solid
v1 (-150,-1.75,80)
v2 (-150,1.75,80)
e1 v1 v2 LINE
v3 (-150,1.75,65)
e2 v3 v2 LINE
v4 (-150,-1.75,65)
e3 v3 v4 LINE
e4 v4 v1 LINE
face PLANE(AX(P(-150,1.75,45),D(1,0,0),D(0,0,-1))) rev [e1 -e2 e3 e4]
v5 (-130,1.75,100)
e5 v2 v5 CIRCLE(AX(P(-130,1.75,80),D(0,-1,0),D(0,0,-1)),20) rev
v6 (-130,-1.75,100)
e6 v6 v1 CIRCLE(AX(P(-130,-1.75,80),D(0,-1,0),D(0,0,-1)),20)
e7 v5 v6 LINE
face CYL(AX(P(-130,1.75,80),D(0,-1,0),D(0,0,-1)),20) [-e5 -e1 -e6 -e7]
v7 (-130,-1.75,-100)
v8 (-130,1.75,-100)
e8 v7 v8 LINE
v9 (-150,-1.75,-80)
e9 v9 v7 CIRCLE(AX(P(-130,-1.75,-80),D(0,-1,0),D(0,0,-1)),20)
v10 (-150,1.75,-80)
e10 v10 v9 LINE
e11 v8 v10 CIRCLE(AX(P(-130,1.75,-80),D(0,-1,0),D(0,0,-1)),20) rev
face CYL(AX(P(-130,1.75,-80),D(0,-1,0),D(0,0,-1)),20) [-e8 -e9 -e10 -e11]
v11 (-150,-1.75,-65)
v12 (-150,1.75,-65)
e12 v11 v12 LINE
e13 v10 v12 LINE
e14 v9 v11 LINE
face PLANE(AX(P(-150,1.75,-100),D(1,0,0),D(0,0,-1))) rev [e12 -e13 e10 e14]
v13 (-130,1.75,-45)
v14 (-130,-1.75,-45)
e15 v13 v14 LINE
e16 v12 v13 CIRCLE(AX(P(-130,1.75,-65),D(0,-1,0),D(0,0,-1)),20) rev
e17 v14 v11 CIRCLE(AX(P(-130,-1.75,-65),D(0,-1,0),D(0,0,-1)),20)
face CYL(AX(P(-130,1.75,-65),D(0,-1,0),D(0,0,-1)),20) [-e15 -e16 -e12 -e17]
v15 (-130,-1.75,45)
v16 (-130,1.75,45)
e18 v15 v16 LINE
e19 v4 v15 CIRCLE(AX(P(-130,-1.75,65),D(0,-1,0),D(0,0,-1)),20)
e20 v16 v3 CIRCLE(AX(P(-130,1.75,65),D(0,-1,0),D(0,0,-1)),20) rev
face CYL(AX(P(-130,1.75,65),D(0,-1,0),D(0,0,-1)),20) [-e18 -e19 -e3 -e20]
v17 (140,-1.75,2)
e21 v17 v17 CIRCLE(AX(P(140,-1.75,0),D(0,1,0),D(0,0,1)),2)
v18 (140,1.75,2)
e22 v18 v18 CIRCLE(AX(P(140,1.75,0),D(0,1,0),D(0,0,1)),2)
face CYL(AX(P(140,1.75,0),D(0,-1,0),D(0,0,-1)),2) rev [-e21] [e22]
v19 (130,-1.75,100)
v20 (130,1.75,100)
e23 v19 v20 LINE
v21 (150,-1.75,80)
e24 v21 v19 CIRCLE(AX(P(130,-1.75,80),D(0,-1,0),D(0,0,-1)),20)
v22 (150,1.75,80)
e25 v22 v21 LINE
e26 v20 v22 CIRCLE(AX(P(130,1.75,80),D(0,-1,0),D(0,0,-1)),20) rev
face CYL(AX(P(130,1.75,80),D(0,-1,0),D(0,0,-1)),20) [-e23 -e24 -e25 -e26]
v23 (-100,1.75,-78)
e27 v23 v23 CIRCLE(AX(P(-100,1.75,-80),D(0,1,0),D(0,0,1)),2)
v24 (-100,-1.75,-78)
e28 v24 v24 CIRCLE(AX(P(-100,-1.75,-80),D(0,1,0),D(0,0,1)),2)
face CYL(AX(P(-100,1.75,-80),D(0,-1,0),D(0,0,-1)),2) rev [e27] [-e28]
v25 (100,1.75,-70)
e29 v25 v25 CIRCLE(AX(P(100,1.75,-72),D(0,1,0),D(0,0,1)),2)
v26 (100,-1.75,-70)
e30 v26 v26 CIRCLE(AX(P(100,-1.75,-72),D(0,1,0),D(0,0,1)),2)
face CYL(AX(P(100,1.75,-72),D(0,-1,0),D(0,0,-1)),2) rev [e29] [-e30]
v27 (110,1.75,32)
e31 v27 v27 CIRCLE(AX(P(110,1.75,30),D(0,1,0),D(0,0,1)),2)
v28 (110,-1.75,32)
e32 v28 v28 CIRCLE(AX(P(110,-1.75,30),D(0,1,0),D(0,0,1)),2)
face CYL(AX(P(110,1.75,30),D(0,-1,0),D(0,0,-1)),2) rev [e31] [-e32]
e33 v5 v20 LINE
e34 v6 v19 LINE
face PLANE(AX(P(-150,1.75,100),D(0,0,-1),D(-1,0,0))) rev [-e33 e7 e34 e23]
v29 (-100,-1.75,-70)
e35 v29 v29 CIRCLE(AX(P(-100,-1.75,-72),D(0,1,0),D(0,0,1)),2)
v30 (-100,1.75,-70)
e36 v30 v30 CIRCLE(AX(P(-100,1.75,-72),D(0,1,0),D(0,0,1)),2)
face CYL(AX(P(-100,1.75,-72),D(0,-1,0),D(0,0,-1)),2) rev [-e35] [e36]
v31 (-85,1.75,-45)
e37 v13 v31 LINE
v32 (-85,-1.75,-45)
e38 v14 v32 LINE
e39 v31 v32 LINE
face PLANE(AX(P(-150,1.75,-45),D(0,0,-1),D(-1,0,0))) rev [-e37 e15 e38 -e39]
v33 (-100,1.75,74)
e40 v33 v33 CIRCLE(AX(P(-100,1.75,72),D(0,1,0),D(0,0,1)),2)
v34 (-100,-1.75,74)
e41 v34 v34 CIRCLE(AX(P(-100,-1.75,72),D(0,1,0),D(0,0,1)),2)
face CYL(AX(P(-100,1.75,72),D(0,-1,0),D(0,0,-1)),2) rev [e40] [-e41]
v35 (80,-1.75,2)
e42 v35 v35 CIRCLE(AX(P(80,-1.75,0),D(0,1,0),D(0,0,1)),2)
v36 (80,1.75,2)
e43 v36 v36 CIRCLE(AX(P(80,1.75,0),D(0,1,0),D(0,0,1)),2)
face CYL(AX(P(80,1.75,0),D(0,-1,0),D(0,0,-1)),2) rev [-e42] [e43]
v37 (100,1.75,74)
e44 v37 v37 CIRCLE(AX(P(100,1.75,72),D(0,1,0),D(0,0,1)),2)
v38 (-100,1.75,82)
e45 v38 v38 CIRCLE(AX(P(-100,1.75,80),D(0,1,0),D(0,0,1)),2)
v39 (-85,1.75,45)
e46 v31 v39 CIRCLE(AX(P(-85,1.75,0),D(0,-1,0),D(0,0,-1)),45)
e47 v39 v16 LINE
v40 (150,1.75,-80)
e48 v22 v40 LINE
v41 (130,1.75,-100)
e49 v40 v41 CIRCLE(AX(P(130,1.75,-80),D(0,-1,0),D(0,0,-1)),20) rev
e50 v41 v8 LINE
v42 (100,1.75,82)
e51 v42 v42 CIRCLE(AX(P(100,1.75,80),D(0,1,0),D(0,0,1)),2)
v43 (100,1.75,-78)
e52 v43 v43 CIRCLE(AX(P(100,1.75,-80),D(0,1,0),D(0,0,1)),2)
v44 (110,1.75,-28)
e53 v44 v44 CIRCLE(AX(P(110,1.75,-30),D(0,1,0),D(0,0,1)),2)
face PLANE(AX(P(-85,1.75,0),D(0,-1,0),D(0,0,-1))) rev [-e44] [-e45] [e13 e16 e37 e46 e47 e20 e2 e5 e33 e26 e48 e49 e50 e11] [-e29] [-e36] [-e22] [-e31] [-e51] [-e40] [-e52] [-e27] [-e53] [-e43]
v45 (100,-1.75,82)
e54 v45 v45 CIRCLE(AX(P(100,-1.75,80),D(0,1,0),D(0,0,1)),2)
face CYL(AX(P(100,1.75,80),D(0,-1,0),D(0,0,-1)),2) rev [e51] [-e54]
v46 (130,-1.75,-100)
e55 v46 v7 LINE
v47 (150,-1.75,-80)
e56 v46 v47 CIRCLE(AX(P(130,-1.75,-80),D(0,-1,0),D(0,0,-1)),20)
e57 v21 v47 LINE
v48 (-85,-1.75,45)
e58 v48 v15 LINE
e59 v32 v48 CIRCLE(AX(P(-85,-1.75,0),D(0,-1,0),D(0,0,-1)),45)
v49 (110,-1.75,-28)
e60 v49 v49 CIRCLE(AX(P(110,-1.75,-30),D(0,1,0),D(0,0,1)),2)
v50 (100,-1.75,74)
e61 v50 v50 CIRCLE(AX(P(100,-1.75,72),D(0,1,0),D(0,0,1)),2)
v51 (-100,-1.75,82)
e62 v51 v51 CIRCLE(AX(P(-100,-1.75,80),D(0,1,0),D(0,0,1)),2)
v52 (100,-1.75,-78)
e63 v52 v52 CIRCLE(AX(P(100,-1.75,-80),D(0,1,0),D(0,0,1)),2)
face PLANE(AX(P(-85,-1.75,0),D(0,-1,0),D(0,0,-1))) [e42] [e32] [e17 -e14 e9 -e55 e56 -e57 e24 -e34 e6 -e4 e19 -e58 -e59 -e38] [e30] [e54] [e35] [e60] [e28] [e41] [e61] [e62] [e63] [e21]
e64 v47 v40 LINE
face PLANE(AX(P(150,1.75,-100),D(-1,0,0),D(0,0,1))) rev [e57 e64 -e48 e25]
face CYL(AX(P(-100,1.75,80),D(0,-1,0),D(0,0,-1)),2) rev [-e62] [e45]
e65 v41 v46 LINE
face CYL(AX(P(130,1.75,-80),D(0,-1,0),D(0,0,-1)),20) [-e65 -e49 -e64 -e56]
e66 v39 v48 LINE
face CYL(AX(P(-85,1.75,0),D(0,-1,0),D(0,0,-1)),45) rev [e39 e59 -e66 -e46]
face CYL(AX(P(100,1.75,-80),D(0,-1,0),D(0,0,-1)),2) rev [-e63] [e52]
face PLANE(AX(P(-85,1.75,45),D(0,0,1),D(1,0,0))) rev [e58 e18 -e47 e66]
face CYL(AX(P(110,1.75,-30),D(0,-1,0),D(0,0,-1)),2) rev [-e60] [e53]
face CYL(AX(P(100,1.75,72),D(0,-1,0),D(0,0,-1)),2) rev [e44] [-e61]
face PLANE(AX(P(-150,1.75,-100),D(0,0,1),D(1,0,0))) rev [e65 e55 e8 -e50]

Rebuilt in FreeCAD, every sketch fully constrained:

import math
import FreeCAD as App
import Part
import Sketcher


def edges_at(feature, points):
    """Names of the edges that pass closest to the given points."""
    edges = feature.Shape.Edges
    near = lambda p: min(range(len(edges)), key=lambda i: edges[i].distToShape(Part.Vertex(*p))[0])
    return sorted({f"Edge{near(p) + 1}" for p in points})

doc = App.newDocument("Part")
params = doc.addObject("Spreadsheet::Sheet", "Params")
for row, (alias, value) in enumerate([
    ("sketch1_diameter", "4 mm"),
    ("sketch1_radius", "45 mm"),
    ("sketch1_width", "65 mm"),
    ("sketch1_width2", "300 mm"),
    ("sketch1_height", "55 mm"),
    ("pad1_length", "3.5 mm"),
    ("fillet_radius", "20 mm"),
], start=1):
    params.set(f"A{row}", alias)
    params.set(f"B{row}", "=" + value)
    params.setAlias(f"B{row}", alias)

body = doc.addObject("PartDesign::Body", "Body")

sketch1 = doc.addObject("Sketcher::SketchObject", "Sketch")
body.addObject(sketch1)
sketch1.AttachmentSupport = (doc.XZ_Plane, [""])
sketch1.MapMode = "FlatFace"
sketch1.addGeometry(Part.LineSegment(App.Vector(-150, -100, 0), App.Vector(-150, -45, 0)), False)
sketch1.addGeometry(Part.LineSegment(App.Vector(-150, -45, 0), App.Vector(-85, -45, 0)), False)
sketch1.addGeometry(Part.ArcOfCircle(Part.Circle(App.Vector(-85, 0, 0), App.Vector(0, 0, 1), 45), math.radians(-90), math.radians(90)), False)
sketch1.addGeometry(Part.LineSegment(App.Vector(-85, 45, 0), App.Vector(-150, 45, 0)), False)
sketch1.addGeometry(Part.LineSegment(App.Vector(-150, 45, 0), App.Vector(-150, 100, 0)), False)
sketch1.addGeometry(Part.LineSegment(App.Vector(-150, 100, 0), App.Vector(150, 100, 0)), False)
sketch1.addGeometry(Part.LineSegment(App.Vector(150, 100, 0), App.Vector(150, -100, 0)), False)
sketch1.addGeometry(Part.LineSegment(App.Vector(150, -100, 0), App.Vector(-150, -100, 0)), False)
sketch1.addGeometry(Part.Circle(App.Vector(-100, 80, 0), App.Vector(0, 0, 1), 2), False)
sketch1.addGeometry(Part.Circle(App.Vector(-100, 72, 0), App.Vector(0, 0, 1), 2), False)
sketch1.addGeometry(Part.Circle(App.Vector(100, 80, 0), App.Vector(0, 0, 1), 2), False)
sketch1.addGeometry(Part.Circle(App.Vector(100, 72, 0), App.Vector(0, 0, 1), 2), False)
sketch1.addGeometry(Part.Circle(App.Vector(110, 30, 0), App.Vector(0, 0, 1), 2), False)
sketch1.addGeometry(Part.Circle(App.Vector(-100, -72, 0), App.Vector(0, 0, 1), 2), False)
sketch1.addGeometry(Part.Circle(App.Vector(-100, -80, 0), App.Vector(0, 0, 1), 2), False)
sketch1.addGeometry(Part.Circle(App.Vector(80, 0, 0), App.Vector(0, 0, 1), 2), False)
sketch1.addGeometry(Part.Circle(App.Vector(140, 0, 0), App.Vector(0, 0, 1), 2), False)
sketch1.addGeometry(Part.Circle(App.Vector(110, -30, 0), App.Vector(0, 0, 1), 2), False)
sketch1.addGeometry(Part.Circle(App.Vector(100, -72, 0), App.Vector(0, 0, 1), 2), False)
sketch1.addGeometry(Part.Circle(App.Vector(100, -80, 0), App.Vector(0, 0, 1), 2), False)
sketch1.addConstraint(Sketcher.Constraint("Coincident", 0, 2, 1, 1))
sketch1.addConstraint(Sketcher.Constraint("Tangent", 1, 2, 2, 1))
sketch1.addConstraint(Sketcher.Constraint("Tangent", 2, 2, 3, 1))
sketch1.addConstraint(Sketcher.Constraint("Coincident", 3, 2, 4, 1))
sketch1.addConstraint(Sketcher.Constraint("Coincident", 4, 2, 5, 1))
sketch1.addConstraint(Sketcher.Constraint("Coincident", 5, 2, 6, 1))
sketch1.addConstraint(Sketcher.Constraint("Coincident", 6, 2, 7, 1))
sketch1.addConstraint(Sketcher.Constraint("Coincident", 7, 2, 0, 1))
sketch1.addConstraint(Sketcher.Constraint("Vertical", 0))
sketch1.addConstraint(Sketcher.Constraint("Horizontal", 1))
sketch1.addConstraint(Sketcher.Constraint("Horizontal", 3))
sketch1.addConstraint(Sketcher.Constraint("Vertical", 4))
sketch1.addConstraint(Sketcher.Constraint("Horizontal", 5))
sketch1.addConstraint(Sketcher.Constraint("Vertical", 6))
sketch1.addConstraint(Sketcher.Constraint("Horizontal", 7))
sketch1.addConstraint(Sketcher.Constraint("Equal", 8, 9))
sketch1.addConstraint(Sketcher.Constraint("Equal", 9, 10))
sketch1.addConstraint(Sketcher.Constraint("Equal", 10, 11))
sketch1.addConstraint(Sketcher.Constraint("Equal", 11, 12))
sketch1.addConstraint(Sketcher.Constraint("Equal", 12, 13))
sketch1.addConstraint(Sketcher.Constraint("Equal", 13, 14))
sketch1.addConstraint(Sketcher.Constraint("Equal", 14, 15))
sketch1.addConstraint(Sketcher.Constraint("Equal", 15, 16))
sketch1.addConstraint(Sketcher.Constraint("Equal", 16, 17))
sketch1.addConstraint(Sketcher.Constraint("Equal", 17, 18))
sketch1.addConstraint(Sketcher.Constraint("Equal", 18, 19))
sketch1.addConstraint(Sketcher.Constraint("Symmetric", 11, 3, 13, 3, -1, 1))
sketch1.addConstraint(Sketcher.Constraint("Symmetric", 10, 3, 14, 3, -1, 1))
sketch1.addConstraint(Sketcher.Constraint("Symmetric", 9, 3, 18, 3, -1, 1))
sketch1.addConstraint(Sketcher.Constraint("Symmetric", 8, 3, 19, 3, -1, 1))
sketch1.addConstraint(Sketcher.Constraint("Symmetric", 4, 2, 6, 2, -1, 1))
sketch1.addConstraint(Sketcher.Constraint("Symmetric", 8, 3, 10, 3, -2))
sketch1.addConstraint(Sketcher.Constraint("Symmetric", 9, 3, 11, 3, -2))
sketch1.addConstraint(Sketcher.Constraint("Symmetric", 12, 3, 17, 3, -1))
sketch1.addConstraint(Sketcher.Constraint("Symmetric", 0, 2, 3, 2, -1))
sketch1.addConstraint(Sketcher.Constraint("PointOnObject", 15, 3, -1))
sketch1.addConstraint(Sketcher.Constraint("PointOnObject", 16, 3, -1))
sketch1.addConstraint(Sketcher.Constraint("Vertical", 8, 3, 9, 3))
sketch1.addConstraint(Sketcher.Constraint("Diameter", 8, 4.0))
sketch1.addConstraint(Sketcher.Constraint("Radius", 2, 45.0))
sketch1.addConstraint(Sketcher.Constraint("DistanceX", 1, 1, 1, 2, 65.0))
sketch1.addConstraint(Sketcher.Constraint("DistanceX", 5, 1, 5, 2, 300.0))
sketch1.addConstraint(Sketcher.Constraint("DistanceY", 0, 1, 0, 2, 55.0))
sketch1.addConstraint(Sketcher.Constraint("DistanceX", 8, 3, -1, 1, 100.0))
sketch1.addConstraint(Sketcher.Constraint("DistanceY", -1, 1, 8, 3, 80.0))
sketch1.addConstraint(Sketcher.Constraint("DistanceY", -1, 1, 9, 3, 72.0))
sketch1.addConstraint(Sketcher.Constraint("DistanceX", -1, 1, 12, 3, 110.0))
sketch1.addConstraint(Sketcher.Constraint("DistanceY", -1, 1, 12, 3, 30.0))
sketch1.addConstraint(Sketcher.Constraint("DistanceX", -1, 1, 15, 3, 80.0))
sketch1.addConstraint(Sketcher.Constraint("DistanceX", -1, 1, 16, 3, 140.0))
sketch1.setExpression("Constraints[38]", "Params.sketch1_diameter")
sketch1.setExpression("Constraints[39]", "Params.sketch1_radius")
sketch1.setExpression("Constraints[40]", "Params.sketch1_width")
sketch1.setExpression("Constraints[41]", "Params.sketch1_width2")
sketch1.setExpression("Constraints[42]", "Params.sketch1_height")
pad1 = doc.addObject("PartDesign::Pad", "Pad")
body.addObject(pad1)
pad1.Profile = sketch1
pad1.setExpression("Length", "Params.pad1_length")
pad1.Midplane = True
doc.recompute()

fillet = doc.addObject("PartDesign::Fillet", "Fillet")
body.addObject(fillet)
fillet.Base = (pad1, edges_at(pad1, [
    (150, 0, 100),
    (-150, 0, 100),
    (-150, 0, 45),
    (-150, 0, -45),
    (-150, 0, -100),
    (150, 0, -100),
]))
fillet.setExpression("Radius", "Params.fillet_radius")

doc.recompute()
